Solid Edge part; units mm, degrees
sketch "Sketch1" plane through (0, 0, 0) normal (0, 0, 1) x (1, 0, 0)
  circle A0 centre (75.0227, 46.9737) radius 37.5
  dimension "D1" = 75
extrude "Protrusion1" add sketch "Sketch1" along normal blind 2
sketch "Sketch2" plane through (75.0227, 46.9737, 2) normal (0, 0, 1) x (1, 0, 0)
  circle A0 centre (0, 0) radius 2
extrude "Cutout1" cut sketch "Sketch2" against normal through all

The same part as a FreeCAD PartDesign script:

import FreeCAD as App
import Part
import Sketcher
from FreeCAD import Vector
Q = App.Units.Quantity

doc = App.newDocument("Part")
body = doc.addObject("PartDesign::Body", "Body")

# Sketch on XY plane
sketch1 = body.newObject("Sketcher::SketchObject", "Sketch")
sketch1.AttachmentSupport = (doc.getObject("XY_Plane"), [""])
sketch1.MapMode = "FlatFace"
sketch1.addGeometry(Part.Circle(Vector(75.0227, 46.9737, 0), Vector(0, 0, 1), 37.5), False)
sketch1.addConstraint([
    Sketcher.Constraint("Diameter", 0, Q("75 mm")),
    Sketcher.Constraint("DistanceX", -1, 1, 0, 3, Q("75.0227 mm")),
    Sketcher.Constraint("DistanceY", -1, 1, 0, 3, Q("46.9737 mm")),
])
pad1 = body.newObject("PartDesign::Pad", "Pad")
pad1.Profile = sketch1
pad1.Length = 2

# Sketch on XY plane
sketch2 = body.newObject("Sketcher::SketchObject", "Sketch001")
sketch2.AttachmentSupport = (doc.getObject("XY_Plane"), [""])
sketch2.MapMode = "FlatFace"
sketch2.AttachmentOffset = App.Placement(Vector(0, 0, 2), App.Rotation())
sketch2.addGeometry(Part.Circle(Vector(75.0227, 46.9737, 0), Vector(0, 0, 1), 2), False)
sketch2.addConstraint([
    Sketcher.Constraint("Diameter", 0, Q("4 mm")),
    Sketcher.Constraint("DistanceX", -1, 1, 0, 3, Q("75.0227 mm")),
    Sketcher.Constraint("DistanceY", -1, 1, 0, 3, Q("46.9737 mm")),
])
pocket1 = body.newObject("PartDesign::Pocket", "Pocket")
pocket1.Profile = sketch2
pocket1.Type = "ThroughAll"

doc.recompute()
